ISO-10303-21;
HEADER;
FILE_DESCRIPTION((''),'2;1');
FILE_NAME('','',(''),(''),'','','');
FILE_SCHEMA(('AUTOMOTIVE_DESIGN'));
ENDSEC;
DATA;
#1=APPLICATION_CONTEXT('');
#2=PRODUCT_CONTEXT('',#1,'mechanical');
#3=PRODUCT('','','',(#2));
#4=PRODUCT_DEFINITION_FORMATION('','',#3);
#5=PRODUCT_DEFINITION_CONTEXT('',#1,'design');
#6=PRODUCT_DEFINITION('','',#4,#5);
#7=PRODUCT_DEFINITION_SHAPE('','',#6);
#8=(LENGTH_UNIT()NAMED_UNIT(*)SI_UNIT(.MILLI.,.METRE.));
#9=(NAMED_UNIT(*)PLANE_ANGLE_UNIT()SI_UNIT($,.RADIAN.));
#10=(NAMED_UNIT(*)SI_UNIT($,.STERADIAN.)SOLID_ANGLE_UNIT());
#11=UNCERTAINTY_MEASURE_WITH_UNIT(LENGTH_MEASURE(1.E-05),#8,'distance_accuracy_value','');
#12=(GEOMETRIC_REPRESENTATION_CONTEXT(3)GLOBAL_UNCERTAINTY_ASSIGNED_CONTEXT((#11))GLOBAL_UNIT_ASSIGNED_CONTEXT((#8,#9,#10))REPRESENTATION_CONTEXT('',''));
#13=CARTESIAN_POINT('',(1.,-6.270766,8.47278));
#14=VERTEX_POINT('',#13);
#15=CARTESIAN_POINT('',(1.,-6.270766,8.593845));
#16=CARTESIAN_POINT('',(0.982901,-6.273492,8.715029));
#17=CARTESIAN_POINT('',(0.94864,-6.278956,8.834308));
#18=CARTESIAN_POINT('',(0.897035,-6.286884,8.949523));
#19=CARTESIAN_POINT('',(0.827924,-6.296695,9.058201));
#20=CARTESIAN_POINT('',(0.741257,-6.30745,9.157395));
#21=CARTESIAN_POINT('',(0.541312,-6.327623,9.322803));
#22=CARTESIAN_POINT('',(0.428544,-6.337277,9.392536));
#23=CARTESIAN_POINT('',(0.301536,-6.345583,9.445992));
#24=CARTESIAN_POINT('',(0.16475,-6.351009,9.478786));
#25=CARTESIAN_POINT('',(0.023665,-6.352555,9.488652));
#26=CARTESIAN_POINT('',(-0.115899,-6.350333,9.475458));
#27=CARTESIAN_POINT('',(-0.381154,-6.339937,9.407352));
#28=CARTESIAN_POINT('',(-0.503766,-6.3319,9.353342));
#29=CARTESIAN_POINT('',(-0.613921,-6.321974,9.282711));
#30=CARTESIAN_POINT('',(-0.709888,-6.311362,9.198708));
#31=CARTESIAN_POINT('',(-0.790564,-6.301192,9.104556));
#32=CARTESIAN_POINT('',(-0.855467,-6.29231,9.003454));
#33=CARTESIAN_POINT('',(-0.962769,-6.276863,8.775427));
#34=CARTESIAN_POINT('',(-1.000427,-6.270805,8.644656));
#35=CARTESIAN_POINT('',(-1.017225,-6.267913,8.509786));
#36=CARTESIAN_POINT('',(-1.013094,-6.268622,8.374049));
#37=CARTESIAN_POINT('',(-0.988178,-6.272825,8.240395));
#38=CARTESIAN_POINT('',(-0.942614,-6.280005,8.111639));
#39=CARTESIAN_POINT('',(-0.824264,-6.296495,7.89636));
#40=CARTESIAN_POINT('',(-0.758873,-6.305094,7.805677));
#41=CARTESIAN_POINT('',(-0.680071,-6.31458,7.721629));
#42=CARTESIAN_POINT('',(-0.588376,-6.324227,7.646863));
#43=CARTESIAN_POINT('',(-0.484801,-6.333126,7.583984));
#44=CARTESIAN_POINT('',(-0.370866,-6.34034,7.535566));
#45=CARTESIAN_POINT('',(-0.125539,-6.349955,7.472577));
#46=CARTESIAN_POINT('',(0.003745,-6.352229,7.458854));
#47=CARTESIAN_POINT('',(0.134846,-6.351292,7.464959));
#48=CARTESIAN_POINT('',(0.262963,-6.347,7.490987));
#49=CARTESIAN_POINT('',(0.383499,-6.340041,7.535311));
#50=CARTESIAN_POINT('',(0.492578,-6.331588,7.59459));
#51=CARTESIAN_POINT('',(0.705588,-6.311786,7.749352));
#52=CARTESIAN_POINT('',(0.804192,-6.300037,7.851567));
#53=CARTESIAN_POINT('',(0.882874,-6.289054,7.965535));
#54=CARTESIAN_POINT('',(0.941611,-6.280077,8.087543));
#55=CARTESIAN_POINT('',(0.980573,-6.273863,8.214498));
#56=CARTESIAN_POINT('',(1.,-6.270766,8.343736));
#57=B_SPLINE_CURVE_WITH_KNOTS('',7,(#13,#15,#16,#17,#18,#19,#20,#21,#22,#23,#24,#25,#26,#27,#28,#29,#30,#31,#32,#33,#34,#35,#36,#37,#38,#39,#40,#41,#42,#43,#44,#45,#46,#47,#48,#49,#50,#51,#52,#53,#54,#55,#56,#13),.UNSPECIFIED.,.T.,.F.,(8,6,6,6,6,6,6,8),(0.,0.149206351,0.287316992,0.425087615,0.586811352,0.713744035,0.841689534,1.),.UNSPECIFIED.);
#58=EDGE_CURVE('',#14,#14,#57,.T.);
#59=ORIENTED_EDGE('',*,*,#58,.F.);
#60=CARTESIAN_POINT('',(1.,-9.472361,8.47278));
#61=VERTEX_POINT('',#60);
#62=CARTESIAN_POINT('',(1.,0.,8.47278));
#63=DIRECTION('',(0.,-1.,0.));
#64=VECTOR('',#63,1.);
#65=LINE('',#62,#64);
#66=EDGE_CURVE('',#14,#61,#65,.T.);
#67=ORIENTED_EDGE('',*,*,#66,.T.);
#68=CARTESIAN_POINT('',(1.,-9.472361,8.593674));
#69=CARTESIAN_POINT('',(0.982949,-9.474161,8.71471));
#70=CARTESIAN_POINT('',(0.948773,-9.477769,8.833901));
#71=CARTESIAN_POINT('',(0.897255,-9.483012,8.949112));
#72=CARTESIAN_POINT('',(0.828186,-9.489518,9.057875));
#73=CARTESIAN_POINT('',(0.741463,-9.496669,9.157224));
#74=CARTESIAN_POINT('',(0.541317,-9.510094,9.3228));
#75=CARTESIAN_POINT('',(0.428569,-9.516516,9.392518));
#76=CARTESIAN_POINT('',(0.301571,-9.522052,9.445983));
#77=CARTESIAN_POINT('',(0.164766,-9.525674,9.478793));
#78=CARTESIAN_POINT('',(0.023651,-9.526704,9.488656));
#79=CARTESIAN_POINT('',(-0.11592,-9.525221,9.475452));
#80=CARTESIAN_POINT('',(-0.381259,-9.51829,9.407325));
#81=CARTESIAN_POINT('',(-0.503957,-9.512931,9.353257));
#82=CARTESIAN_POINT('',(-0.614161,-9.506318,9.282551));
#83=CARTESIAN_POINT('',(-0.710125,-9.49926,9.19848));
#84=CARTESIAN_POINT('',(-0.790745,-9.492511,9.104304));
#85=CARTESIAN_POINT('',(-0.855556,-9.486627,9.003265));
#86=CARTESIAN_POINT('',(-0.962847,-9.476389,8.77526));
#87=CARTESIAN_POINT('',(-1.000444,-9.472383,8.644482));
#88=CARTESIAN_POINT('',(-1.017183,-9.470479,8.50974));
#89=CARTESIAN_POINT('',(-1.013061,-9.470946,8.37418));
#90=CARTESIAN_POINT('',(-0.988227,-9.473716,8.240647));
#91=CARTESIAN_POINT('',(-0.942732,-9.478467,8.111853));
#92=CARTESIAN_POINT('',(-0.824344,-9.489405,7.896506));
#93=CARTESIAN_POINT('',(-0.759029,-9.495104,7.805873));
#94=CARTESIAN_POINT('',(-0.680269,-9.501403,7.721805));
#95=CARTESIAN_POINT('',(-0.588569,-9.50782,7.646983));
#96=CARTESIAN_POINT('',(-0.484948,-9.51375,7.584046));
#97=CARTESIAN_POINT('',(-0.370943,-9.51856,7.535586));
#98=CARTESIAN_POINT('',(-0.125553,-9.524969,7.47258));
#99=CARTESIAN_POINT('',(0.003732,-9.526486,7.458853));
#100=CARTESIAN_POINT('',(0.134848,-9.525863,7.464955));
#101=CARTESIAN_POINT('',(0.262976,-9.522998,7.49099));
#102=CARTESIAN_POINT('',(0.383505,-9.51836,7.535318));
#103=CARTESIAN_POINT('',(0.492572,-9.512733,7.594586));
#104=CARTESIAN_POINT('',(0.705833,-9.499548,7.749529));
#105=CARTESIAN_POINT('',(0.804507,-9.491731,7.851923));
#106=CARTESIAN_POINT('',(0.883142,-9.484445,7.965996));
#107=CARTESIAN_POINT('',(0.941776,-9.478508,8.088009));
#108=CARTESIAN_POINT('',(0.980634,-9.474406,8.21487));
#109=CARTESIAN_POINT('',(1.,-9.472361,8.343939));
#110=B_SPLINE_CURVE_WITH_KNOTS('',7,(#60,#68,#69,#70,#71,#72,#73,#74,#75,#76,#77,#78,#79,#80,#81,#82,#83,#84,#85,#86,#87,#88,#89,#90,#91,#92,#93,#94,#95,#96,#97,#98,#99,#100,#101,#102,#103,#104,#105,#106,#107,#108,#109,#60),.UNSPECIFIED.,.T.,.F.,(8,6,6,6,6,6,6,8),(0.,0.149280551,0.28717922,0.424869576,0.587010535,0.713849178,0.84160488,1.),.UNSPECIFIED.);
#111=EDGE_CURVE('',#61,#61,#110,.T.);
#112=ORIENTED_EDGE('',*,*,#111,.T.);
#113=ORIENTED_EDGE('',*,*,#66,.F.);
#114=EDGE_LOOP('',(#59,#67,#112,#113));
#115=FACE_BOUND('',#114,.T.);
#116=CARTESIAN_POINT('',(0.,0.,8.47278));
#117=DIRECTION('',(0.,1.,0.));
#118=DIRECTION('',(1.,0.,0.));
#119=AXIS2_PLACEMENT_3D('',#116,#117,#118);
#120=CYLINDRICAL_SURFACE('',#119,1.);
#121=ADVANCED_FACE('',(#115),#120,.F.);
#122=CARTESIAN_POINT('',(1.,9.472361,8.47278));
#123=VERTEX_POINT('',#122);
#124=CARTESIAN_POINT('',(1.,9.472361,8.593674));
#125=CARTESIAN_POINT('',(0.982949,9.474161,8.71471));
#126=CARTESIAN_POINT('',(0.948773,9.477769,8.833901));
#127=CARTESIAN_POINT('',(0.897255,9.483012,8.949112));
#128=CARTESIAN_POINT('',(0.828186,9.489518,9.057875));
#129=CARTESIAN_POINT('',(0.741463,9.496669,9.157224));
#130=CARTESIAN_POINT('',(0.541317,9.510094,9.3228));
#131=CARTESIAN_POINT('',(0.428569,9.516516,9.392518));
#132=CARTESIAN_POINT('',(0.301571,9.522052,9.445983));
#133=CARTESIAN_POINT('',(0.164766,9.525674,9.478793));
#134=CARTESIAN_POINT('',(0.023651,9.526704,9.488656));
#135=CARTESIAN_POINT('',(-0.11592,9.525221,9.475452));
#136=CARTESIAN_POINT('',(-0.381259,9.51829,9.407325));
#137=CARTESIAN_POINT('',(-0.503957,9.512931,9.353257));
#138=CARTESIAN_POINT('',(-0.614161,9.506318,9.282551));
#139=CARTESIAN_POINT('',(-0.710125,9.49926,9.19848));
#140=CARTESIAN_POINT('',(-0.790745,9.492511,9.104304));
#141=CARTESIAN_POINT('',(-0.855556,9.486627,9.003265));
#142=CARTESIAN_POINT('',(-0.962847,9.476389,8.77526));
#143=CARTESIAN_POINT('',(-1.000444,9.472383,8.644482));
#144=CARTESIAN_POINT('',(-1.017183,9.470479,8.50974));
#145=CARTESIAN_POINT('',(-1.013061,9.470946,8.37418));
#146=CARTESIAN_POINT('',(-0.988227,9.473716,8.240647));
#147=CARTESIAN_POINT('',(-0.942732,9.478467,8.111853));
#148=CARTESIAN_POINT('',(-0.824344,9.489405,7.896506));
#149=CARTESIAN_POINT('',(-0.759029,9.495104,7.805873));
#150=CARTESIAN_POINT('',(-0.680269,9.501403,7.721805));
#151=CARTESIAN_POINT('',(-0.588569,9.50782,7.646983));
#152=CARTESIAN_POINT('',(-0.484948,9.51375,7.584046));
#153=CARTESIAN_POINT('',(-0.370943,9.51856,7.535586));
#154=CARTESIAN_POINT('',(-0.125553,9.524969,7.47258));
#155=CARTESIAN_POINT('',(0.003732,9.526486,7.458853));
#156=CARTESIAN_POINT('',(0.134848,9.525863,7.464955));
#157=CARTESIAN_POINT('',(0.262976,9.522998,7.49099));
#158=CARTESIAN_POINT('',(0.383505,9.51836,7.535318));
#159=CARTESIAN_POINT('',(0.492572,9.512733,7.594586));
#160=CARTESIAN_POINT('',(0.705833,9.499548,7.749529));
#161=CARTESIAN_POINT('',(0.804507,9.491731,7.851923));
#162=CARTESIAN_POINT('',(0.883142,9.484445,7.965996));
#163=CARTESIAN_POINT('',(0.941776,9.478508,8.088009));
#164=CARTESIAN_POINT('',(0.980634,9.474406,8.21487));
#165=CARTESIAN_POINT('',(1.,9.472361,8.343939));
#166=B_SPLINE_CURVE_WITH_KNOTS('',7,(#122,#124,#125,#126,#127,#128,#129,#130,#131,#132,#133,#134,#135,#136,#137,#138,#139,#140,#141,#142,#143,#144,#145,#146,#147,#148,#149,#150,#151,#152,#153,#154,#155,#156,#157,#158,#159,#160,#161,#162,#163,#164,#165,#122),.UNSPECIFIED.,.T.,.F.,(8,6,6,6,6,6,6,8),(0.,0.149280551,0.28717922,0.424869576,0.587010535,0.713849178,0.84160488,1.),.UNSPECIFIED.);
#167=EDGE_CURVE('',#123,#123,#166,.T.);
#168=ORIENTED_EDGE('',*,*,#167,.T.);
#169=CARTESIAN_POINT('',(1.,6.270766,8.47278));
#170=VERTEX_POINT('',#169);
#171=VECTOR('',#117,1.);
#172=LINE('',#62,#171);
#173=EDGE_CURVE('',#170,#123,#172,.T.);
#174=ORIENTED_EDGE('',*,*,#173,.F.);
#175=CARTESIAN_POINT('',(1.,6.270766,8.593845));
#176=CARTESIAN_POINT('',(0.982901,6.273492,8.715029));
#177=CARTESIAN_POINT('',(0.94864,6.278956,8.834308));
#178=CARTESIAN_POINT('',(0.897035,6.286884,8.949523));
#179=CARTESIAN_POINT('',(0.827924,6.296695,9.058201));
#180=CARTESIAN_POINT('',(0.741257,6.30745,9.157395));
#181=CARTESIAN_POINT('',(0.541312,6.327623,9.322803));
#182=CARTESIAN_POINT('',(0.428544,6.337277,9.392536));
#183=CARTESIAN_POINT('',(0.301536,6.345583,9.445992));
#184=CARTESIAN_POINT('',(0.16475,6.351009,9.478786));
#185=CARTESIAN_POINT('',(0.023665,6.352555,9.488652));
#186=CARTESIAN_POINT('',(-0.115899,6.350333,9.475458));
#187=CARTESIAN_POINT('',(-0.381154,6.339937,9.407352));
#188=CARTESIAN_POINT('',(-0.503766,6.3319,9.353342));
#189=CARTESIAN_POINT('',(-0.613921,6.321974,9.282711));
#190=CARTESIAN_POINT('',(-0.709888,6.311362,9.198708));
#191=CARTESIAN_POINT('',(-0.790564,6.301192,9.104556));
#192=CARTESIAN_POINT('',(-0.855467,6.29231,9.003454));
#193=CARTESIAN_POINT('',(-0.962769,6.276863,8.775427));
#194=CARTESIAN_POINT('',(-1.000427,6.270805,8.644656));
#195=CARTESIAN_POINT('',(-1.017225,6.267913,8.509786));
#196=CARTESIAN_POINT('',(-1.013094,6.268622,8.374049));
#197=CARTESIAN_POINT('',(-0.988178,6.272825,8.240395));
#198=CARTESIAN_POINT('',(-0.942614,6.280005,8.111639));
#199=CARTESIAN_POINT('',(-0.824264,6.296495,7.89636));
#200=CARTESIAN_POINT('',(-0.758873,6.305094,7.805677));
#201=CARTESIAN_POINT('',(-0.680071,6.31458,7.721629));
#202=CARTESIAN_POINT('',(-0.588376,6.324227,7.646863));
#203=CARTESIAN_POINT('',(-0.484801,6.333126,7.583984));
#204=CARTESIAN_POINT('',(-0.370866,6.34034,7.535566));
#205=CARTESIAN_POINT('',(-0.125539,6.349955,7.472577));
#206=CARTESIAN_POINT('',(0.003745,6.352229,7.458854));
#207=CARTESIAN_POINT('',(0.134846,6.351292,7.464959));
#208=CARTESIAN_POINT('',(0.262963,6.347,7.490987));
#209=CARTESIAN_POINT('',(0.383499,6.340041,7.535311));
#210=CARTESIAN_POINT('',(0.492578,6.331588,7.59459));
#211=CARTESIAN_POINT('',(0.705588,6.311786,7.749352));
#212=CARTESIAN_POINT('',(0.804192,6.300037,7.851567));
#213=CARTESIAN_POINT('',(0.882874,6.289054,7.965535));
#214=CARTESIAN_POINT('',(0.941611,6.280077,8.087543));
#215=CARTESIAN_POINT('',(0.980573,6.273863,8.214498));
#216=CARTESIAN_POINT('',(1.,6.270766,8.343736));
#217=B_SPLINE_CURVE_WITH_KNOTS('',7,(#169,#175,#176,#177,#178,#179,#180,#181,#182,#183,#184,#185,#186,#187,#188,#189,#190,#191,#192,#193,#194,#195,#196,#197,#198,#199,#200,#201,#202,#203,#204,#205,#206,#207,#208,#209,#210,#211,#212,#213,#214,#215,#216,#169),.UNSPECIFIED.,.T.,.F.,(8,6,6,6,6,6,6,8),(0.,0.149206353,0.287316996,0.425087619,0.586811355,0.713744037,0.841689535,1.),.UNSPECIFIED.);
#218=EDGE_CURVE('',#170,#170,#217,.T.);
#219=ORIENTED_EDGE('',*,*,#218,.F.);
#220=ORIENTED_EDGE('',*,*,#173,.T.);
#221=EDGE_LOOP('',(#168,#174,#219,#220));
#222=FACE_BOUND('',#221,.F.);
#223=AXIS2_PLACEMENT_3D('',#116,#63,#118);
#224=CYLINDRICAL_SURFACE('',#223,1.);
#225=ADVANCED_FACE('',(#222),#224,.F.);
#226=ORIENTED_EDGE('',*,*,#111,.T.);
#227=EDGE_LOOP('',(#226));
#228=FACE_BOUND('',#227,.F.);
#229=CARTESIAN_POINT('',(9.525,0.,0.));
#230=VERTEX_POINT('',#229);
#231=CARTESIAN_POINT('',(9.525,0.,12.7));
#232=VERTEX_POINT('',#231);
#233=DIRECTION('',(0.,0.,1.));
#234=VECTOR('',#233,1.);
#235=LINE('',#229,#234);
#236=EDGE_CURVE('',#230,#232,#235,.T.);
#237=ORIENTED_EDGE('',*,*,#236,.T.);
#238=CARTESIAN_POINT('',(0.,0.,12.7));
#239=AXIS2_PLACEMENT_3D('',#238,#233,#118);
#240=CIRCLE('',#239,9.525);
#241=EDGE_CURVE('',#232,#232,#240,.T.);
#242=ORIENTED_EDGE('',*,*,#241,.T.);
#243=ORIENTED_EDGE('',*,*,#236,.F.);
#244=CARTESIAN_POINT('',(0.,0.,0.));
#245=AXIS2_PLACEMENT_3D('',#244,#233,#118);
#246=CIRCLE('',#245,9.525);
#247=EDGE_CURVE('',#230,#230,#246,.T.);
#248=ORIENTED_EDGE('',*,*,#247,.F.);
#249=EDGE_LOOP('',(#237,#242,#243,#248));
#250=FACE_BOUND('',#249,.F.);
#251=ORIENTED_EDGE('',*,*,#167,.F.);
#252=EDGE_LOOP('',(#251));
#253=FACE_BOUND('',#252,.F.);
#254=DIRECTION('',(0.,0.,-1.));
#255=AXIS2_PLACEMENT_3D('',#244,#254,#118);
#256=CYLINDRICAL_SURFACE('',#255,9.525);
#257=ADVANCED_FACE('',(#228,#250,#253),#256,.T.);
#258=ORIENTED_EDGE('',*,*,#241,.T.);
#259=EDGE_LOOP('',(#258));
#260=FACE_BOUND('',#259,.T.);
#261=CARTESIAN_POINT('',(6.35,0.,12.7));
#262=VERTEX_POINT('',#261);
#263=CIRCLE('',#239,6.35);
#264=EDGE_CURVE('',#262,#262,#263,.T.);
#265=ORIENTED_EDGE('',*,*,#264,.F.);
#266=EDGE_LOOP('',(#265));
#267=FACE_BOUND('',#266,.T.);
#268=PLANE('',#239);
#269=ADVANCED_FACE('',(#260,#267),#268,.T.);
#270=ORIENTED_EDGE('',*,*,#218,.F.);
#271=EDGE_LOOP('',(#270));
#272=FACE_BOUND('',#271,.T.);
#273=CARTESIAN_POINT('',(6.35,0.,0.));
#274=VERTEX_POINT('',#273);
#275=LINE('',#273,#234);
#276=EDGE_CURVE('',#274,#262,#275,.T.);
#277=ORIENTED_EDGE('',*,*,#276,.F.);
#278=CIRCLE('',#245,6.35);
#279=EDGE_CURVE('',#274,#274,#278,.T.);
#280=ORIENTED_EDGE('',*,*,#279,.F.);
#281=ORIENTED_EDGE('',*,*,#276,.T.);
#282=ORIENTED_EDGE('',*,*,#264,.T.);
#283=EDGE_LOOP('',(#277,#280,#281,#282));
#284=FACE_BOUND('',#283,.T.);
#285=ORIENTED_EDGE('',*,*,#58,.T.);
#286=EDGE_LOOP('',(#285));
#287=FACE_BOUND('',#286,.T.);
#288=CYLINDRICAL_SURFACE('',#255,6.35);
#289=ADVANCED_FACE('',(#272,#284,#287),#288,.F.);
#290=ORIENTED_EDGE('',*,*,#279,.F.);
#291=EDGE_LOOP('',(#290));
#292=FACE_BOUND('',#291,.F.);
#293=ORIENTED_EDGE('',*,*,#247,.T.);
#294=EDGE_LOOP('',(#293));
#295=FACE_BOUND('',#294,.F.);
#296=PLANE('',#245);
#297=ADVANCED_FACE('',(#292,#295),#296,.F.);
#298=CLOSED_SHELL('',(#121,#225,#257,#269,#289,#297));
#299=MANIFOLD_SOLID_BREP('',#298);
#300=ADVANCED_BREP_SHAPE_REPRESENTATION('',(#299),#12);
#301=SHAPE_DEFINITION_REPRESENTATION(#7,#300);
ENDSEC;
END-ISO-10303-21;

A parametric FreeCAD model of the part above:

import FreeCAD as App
import Part
import Sketcher
from FreeCAD import Vector
Q = App.Units.Quantity

doc = App.newDocument("Part")
params = doc.addObject("Spreadsheet::Sheet", "Params")
for row, (alias, value) in enumerate([
    ("sketch1_diameter", "0.5 in"),
    ("sketch1_diameter2", "0.75 in"),
    ("pad1_length", "0.5 in"),
], start=1):
    params.set(f"A{row}", alias)
    params.set(f"B{row}", "=" + value)
    params.setAlias(f"B{row}", alias)

body = doc.addObject("PartDesign::Body", "Body")

# Sketch on XY plane
sketch1 = doc.addObject("Sketcher::SketchObject", "Sketch")
body.addObject(sketch1)
sketch1.AttachmentSupport = (doc.XY_Plane, [""])
sketch1.MapMode = "FlatFace"
sketch1.addGeometry([
    Part.Circle(Vector(0, 0, 0), Vector(0, 0, 1), 10),
    Part.Circle(Vector(0, 0, 0), Vector(0, 0, 1), 6),
], False)
sketch1.addConstraint([
    Sketcher.Constraint("Coincident", 0, 3, -1, 1),
    Sketcher.Constraint("Coincident", 1, 3, -1, 1),
    Sketcher.Constraint("Diameter", 1, Q("0.5 in")),
    Sketcher.Constraint("Diameter", 0, Q("0.75 in")),
])
sketch1.setExpression("Constraints[2]", "Params.sketch1_diameter")
sketch1.setExpression("Constraints[3]", "Params.sketch1_diameter2")
pad1 = doc.addObject("PartDesign::Pad", "Pad")
body.addObject(pad1)
pad1.Profile = sketch1
pad1.setExpression("Length", "Params.pad1_length")

# Sketch on XZ plane
sketch2 = doc.addObject("Sketcher::SketchObject", "Sketch001")
body.addObject(sketch2)
sketch2.AttachmentSupport = (doc.XZ_Plane, [""])
sketch2.MapMode = "FlatFace"
sketch2.addGeometry(Part.Circle(Vector(0, 8.5, 0), Vector(0, 0, 1), 1), False)
sketch2.addConstraint([
    Sketcher.Constraint("PointOnObject", 0, 3, -2),
    Sketcher.Constraint("Diameter", 0, Q("2 mm")),
    Sketcher.Constraint("DistanceY", -1, 1, 0, 3, Q("8.47278 mm")),
])
pocket1 = doc.addObject("PartDesign::Pocket", "Pocket")
body.addObject(pocket1)
pocket1.Profile = sketch2
pocket1.Type = "ThroughAll"
pocket1.Midplane = True

doc.recompute()
